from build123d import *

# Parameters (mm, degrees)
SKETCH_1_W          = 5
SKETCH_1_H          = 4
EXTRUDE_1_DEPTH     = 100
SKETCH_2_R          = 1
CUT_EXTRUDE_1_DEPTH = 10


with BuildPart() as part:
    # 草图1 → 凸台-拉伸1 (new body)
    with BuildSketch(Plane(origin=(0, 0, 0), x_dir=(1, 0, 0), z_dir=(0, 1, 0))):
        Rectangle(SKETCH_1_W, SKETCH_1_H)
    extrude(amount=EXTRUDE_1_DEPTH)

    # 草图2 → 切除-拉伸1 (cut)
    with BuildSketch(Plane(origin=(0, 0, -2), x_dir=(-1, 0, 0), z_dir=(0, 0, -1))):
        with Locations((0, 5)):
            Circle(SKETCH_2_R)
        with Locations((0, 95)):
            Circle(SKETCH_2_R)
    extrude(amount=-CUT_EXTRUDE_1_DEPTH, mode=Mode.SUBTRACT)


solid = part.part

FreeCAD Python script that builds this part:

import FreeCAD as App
import Part
import Sketcher

doc = App.newDocument("Part")
params = doc.addObject("Spreadsheet::Sheet", "Params")
for row, (alias, value) in enumerate([
    ("sketch1_width", "5 mm"),
    ("sketch1_height", "4 mm"),
    ("pad1_length", "100 mm"),
    ("sketch2_diameter", "2 mm"),
    ("pocket1_length", "10 mm"),
], start=1):
    params.set(f"A{row}", alias)
    params.set(f"B{row}", "=" + value)
    params.setAlias(f"B{row}", alias)

body = doc.addObject("PartDesign::Body", "Body")

sketch1 = body.newObject("Sketcher::SketchObject", "Sketch")
sketch1.AttachmentSupport = (doc.getObject("XZ_Plane"), [""])
sketch1.MapMode = "FlatFace"
sketch1.addGeometry([
    Part.LineSegment(App.Vector(-2.5, -2, 0), App.Vector(-2.5, 2, 0)),
    Part.LineSegment(App.Vector(-2.5, 2, 0), App.Vector(2.5, 2, 0)),
    Part.LineSegment(App.Vector(2.5, 2, 0), App.Vector(2.5, -2, 0)),
    Part.LineSegment(App.Vector(2.5, -2, 0), App.Vector(-2.5, -2, 0)),
], False)
sketch1.addConstraint([
    Sketcher.Constraint("Coincident", 0, 2, 1, 1),
    Sketcher.Constraint("Coincident", 1, 2, 2, 1),
    Sketcher.Constraint("Coincident", 2, 2, 3, 1),
    Sketcher.Constraint("Coincident", 3, 2, 0, 1),
    Sketcher.Constraint("Vertical", 0),
    Sketcher.Constraint("Horizontal", 1),
    Sketcher.Constraint("Vertical", 2),
    Sketcher.Constraint("Horizontal", 3),
    Sketcher.Constraint("Symmetric", 0, 2, 2, 2, -1, 1),
    Sketcher.Constraint("DistanceX", 1, 1, 1, 2, 5.0),
    Sketcher.Constraint("DistanceY", 0, 1, 0, 2, 4.0),
])
sketch1.setExpression("Constraints[9]", "Params.sketch1_width")
sketch1.setExpression("Constraints[10]", "Params.sketch1_height")
pad1 = body.newObject("PartDesign::Pad", "Pad")
pad1.Profile = sketch1
pad1.setExpression("Length", "Params.pad1_length")
pad1.Reversed = True

sketch2 = body.newObject("Sketcher::SketchObject", "Sketch001")
sketch2.AttachmentSupport = (doc.getObject("XY_Plane"), [""])
sketch2.MapMode = "FlatFace"
sketch2.AttachmentOffset = App.Placement(App.Vector(0, 0, -2), App.Rotation())
sketch2.addGeometry([
    Part.Circle(App.Vector(0, 5, 0), App.Vector(0, 0, 1), 1),
    Part.Circle(App.Vector(0, 95, 0), App.Vector(0, 0, 1), 1),
], False)
sketch2.addConstraint([
    Sketcher.Constraint("Equal", 0, 1),
    Sketcher.Constraint("PointOnObject", 0, 3, -2),
    Sketcher.Constraint("PointOnObject", 1, 3, -2),
    Sketcher.Constraint("Diameter", 0, 2.0),
    Sketcher.Constraint("DistanceY", -1, 1, 0, 3, 5.0),
    Sketcher.Constraint("DistanceY", -1, 1, 1, 3, 95.0),
])
sketch2.setExpression("Constraints[3]", "Params.sketch2_diameter")
pocket1 = body.newObject("PartDesign::Pocket", "Pocket")
pocket1.Profile = sketch2
pocket1.setExpression("Length", "Params.pocket1_length")
pocket1.Reversed = True

doc.recompute()
